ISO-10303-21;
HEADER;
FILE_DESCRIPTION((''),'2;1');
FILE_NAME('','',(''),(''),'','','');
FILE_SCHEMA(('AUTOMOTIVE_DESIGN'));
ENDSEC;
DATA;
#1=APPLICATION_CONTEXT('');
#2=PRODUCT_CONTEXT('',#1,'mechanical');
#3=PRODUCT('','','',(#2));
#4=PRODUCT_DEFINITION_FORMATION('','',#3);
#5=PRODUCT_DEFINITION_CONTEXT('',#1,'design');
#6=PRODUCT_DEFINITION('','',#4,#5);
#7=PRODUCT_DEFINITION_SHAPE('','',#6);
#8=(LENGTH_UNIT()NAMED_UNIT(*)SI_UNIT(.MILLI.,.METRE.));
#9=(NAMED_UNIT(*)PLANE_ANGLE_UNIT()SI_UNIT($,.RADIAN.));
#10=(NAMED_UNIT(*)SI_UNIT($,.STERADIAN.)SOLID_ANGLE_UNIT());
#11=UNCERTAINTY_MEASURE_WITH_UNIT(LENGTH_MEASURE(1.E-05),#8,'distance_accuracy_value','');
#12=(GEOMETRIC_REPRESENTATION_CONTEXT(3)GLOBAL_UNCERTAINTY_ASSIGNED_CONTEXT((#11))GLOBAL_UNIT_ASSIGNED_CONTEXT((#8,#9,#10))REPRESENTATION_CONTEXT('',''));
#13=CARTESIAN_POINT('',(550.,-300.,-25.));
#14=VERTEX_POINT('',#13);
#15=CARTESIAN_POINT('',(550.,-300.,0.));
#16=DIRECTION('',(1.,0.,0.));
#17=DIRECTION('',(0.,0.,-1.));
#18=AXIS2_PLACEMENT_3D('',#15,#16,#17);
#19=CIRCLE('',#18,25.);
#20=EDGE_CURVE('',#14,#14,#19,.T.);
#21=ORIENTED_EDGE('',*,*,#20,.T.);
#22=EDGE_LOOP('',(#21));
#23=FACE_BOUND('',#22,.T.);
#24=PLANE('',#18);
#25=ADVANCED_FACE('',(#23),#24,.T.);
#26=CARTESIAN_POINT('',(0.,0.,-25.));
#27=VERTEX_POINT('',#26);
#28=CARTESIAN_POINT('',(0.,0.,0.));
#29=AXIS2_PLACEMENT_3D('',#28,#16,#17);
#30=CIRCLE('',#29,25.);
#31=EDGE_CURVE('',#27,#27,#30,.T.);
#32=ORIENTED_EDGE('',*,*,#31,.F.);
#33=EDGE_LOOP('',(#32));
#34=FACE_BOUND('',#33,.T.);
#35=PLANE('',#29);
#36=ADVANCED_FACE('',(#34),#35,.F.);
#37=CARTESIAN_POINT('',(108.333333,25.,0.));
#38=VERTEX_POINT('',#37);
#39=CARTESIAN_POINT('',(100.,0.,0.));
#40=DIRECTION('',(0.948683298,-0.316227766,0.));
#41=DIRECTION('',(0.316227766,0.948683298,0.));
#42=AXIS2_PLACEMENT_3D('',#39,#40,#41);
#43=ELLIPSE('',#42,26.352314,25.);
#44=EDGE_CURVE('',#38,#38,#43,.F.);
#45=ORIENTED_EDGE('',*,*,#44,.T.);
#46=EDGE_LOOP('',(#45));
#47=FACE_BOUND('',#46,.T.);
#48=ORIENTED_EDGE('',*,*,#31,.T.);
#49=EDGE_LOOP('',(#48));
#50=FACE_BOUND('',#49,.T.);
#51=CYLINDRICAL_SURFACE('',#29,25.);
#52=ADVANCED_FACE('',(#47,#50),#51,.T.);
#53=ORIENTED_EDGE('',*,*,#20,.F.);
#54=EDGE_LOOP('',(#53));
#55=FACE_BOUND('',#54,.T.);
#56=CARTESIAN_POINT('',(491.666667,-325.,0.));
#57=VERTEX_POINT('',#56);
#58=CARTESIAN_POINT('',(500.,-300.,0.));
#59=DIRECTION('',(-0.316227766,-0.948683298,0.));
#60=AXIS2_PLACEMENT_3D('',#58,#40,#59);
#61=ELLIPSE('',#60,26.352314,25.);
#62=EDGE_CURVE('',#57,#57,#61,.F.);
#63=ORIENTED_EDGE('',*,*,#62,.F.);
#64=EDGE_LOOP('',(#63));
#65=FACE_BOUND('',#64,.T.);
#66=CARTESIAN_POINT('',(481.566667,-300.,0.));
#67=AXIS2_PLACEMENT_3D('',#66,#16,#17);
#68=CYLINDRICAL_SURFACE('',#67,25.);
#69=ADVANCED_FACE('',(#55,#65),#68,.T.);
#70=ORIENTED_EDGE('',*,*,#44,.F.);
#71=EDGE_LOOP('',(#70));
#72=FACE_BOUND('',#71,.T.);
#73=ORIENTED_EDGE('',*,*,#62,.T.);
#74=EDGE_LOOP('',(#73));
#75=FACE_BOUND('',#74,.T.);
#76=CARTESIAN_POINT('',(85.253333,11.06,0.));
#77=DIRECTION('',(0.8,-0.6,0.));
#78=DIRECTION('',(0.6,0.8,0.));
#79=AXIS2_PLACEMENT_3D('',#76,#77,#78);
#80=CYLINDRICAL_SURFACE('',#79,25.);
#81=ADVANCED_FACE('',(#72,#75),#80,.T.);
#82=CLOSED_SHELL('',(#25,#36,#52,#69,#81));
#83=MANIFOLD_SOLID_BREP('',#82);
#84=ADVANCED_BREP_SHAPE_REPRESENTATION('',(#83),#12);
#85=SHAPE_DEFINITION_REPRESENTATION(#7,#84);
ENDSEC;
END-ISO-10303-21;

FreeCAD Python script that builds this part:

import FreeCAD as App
import Part
import Sketcher

doc = App.newDocument("Part")
body = doc.addObject("PartDesign::Body", "Body")

# Sketch on YZ plane
sketch1 = body.newObject("Sketcher::SketchObject", "Sketch")
sketch1.AttachmentSupport = (doc.getObject("YZ_Plane"), [""])
sketch1.MapMode = "FlatFace"
sketch1.addGeometry(Part.Circle(App.Vector(0, 0, 0), App.Vector(0, 0, 1), 25), False)
sketch1.addConstraint([
    Sketcher.Constraint("Coincident", 0, 3, -1, 1),
    Sketcher.Constraint("Diameter", 0, 50.0),
])

# Sketch on XY plane
sketch2 = body.newObject("Sketcher::SketchObject", "Sketch001")
sketch2.AttachmentSupport = (doc.getObject("XY_Plane"), [""])
sketch2.MapMode = "FlatFace"
sketch2.addGeometry([
    Part.LineSegment(App.Vector(0, 0, 0), App.Vector(100, 0, 0)),
    Part.LineSegment(App.Vector(100, 0, 0), App.Vector(500, -300, 0)),
    Part.LineSegment(App.Vector(500, -300, 0), App.Vector(550, -300, 0)),
], False)
sketch2.addConstraint([
    Sketcher.Constraint("Coincident", 0, 2, 1, 1),
    Sketcher.Constraint("Coincident", 1, 2, 2, 1),
    Sketcher.Constraint("Horizontal", 0),
    Sketcher.Constraint("Horizontal", 2),
    Sketcher.Constraint("Coincident", 0, 1, -1, 1),
    Sketcher.Constraint("DistanceX", 0, 1, 0, 2, 100.0),
    Sketcher.Constraint("DistanceX", 2, 1, 2, 2, 50.0),
    Sketcher.Constraint("Distance", 1, 500.0),
    Sketcher.Constraint("DistanceX", -1, 1, 1, 2, 500.0),
])
doc.recompute()

additivepipe = body.newObject("PartDesign::AdditivePipe", "AdditivePipe")
additivepipe.Profile = sketch1
additivepipe.Spine = (sketch2, ["Edge1", "Edge2", "Edge3"])
additivepipe.Transition = "Right corner"

doc.recompute()
